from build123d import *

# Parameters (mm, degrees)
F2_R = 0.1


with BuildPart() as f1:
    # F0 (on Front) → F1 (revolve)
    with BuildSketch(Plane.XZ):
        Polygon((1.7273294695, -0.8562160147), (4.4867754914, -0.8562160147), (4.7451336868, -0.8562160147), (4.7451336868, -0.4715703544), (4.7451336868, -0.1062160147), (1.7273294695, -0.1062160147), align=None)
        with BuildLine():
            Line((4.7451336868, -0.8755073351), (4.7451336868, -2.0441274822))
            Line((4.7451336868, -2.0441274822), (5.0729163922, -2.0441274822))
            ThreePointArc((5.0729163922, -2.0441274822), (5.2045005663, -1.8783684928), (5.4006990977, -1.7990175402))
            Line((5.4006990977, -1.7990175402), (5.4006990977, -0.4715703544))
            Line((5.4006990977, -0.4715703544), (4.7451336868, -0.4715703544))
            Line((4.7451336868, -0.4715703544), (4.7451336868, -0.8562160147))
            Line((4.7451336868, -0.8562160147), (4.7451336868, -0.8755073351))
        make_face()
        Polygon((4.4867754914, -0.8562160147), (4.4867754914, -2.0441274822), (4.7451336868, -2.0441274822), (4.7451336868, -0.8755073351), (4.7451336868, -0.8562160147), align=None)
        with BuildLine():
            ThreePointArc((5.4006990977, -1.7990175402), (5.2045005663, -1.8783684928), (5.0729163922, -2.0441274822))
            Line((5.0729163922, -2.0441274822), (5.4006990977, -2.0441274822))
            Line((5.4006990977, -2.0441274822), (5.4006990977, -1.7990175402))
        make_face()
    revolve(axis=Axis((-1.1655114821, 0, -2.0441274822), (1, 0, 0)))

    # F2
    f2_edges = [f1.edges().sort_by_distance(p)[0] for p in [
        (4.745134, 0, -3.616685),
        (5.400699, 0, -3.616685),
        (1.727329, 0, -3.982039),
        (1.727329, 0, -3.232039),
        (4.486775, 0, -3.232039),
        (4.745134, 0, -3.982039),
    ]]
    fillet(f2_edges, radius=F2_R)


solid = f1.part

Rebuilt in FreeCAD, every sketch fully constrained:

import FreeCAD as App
import Part
import Sketcher
from FreeCAD import Vector
Q = App.Units.Quantity


def edges_at(feature, points):
    """Names of the edges that pass closest to the given points."""
    edges = feature.Shape.Edges
    near = lambda p: min(range(len(edges)), key=lambda i: edges[i].distToShape(Part.Vertex(*p))[0])
    return sorted({f"Edge{near(p) + 1}" for p in points})


def add_polygon(sketch, points):
    """Adds a closed chain of lines whose ends are joined by coincident constraints."""
    first, n = sketch.GeometryCount, len(points)
    for a, b in zip(points, points[1:] + points[:1]):
        sketch.addGeometry(Part.LineSegment(App.Vector(*a, 0), App.Vector(*b, 0)), False)
    for i in range(n):
        sketch.addConstraint(Sketcher.Constraint("Coincident", first + i, 2, first + (i + 1) % n, 1))

doc = App.newDocument("Part")
params = doc.addObject("Spreadsheet::Sheet", "Params")
for row, (alias, value) in enumerate([
    ("sketch1_height", "0.75 mm"),
    ("revolution_angle", "360 deg"),
    ("fillet_radius", "0.1 mm"),
], start=1):
    params.set(f"A{row}", alias)
    params.set(f"B{row}", "=" + value)
    params.setAlias(f"B{row}", alias)

body = doc.addObject("PartDesign::Body", "Body")

# Sketch on XZ plane
sketch1 = body.newObject("Sketcher::SketchObject", "Sketch")
sketch1.AttachmentSupport = (doc.getObject("XZ_Plane"), [""])
sketch1.MapMode = "FlatFace"
add_polygon(sketch1, [(1.727329, -0.106216), (1.727329, -0.856216), (4.486775, -0.856216), (4.486775, -2.044127), (5.400699, -2.044127), (5.400699, -0.47157), (4.745134, -0.47157), (4.745134, -0.106216)])  # lines 0-7
sketch1.addGeometry(Part.LineSegment(Vector(1.727329, -2.044127, 0), Vector(5.400699, -2.044127, 0)), True)  # axis
sketch1.addConstraint([
    Sketcher.Constraint("Vertical", 0),
    Sketcher.Constraint("Horizontal", 1),
    Sketcher.Constraint("Vertical", 2),
    Sketcher.Constraint("Horizontal", 3),
    Sketcher.Constraint("Vertical", 4),
    Sketcher.Constraint("Horizontal", 5),
    Sketcher.Constraint("Vertical", 6),
    Sketcher.Constraint("Horizontal", 7),
    Sketcher.Constraint("Horizontal", 8),
    Sketcher.Constraint("Coincident", 8, 2, 3, 2),
    Sketcher.Constraint("Vertical", 7, 2, 8, 1),
    Sketcher.Constraint("DistanceY", 0, 2, 0, 1, Q("0.75 mm")),
    Sketcher.Constraint("DistanceX", 8, 1, 8, 2, Q("3.67337 mm")),
    Sketcher.Constraint("DistanceY", 2, 2, 2, 1, Q("1.187911 mm")),
    Sketcher.Constraint("DistanceX", -1, 1, 3, 2, Q("5.400699 mm")),
    Sketcher.Constraint("DistanceX", 1, 1, 1, 2, Q("2.759446 mm")),
    Sketcher.Constraint("DistanceX", 5, 2, 5, 1, Q("0.655565 mm")),
    Sketcher.Constraint("DistanceY", 4, 1, 4, 2, Q("1.572557 mm")),
    Sketcher.Constraint("DistanceY", 4, 2, -1, 1, Q("0.47157 mm")),
])
sketch1.setExpression("Constraints[19]", "Params.sketch1_height")
revolution = body.newObject("PartDesign::Revolution", "Revolution")
revolution.Profile = sketch1
revolution.ReferenceAxis = (sketch1, ["Axis0"])
revolution.setExpression("Angle", "Params.revolution_angle")
doc.recompute()

fillet = body.newObject("PartDesign::Fillet", "Fillet")
fillet.Base = (revolution, edges_at(revolution, [
    (4.745, 0, -3.617),
    (5.401, 0, -3.617),
    (1.727, 0, -3.982),
    (1.727, 0, -3.232),
    (4.487, 0, -3.232),
    (4.745, 0, -3.982),
]))
fillet.setExpression("Radius", "Params.fillet_radius")

doc.recompute()
